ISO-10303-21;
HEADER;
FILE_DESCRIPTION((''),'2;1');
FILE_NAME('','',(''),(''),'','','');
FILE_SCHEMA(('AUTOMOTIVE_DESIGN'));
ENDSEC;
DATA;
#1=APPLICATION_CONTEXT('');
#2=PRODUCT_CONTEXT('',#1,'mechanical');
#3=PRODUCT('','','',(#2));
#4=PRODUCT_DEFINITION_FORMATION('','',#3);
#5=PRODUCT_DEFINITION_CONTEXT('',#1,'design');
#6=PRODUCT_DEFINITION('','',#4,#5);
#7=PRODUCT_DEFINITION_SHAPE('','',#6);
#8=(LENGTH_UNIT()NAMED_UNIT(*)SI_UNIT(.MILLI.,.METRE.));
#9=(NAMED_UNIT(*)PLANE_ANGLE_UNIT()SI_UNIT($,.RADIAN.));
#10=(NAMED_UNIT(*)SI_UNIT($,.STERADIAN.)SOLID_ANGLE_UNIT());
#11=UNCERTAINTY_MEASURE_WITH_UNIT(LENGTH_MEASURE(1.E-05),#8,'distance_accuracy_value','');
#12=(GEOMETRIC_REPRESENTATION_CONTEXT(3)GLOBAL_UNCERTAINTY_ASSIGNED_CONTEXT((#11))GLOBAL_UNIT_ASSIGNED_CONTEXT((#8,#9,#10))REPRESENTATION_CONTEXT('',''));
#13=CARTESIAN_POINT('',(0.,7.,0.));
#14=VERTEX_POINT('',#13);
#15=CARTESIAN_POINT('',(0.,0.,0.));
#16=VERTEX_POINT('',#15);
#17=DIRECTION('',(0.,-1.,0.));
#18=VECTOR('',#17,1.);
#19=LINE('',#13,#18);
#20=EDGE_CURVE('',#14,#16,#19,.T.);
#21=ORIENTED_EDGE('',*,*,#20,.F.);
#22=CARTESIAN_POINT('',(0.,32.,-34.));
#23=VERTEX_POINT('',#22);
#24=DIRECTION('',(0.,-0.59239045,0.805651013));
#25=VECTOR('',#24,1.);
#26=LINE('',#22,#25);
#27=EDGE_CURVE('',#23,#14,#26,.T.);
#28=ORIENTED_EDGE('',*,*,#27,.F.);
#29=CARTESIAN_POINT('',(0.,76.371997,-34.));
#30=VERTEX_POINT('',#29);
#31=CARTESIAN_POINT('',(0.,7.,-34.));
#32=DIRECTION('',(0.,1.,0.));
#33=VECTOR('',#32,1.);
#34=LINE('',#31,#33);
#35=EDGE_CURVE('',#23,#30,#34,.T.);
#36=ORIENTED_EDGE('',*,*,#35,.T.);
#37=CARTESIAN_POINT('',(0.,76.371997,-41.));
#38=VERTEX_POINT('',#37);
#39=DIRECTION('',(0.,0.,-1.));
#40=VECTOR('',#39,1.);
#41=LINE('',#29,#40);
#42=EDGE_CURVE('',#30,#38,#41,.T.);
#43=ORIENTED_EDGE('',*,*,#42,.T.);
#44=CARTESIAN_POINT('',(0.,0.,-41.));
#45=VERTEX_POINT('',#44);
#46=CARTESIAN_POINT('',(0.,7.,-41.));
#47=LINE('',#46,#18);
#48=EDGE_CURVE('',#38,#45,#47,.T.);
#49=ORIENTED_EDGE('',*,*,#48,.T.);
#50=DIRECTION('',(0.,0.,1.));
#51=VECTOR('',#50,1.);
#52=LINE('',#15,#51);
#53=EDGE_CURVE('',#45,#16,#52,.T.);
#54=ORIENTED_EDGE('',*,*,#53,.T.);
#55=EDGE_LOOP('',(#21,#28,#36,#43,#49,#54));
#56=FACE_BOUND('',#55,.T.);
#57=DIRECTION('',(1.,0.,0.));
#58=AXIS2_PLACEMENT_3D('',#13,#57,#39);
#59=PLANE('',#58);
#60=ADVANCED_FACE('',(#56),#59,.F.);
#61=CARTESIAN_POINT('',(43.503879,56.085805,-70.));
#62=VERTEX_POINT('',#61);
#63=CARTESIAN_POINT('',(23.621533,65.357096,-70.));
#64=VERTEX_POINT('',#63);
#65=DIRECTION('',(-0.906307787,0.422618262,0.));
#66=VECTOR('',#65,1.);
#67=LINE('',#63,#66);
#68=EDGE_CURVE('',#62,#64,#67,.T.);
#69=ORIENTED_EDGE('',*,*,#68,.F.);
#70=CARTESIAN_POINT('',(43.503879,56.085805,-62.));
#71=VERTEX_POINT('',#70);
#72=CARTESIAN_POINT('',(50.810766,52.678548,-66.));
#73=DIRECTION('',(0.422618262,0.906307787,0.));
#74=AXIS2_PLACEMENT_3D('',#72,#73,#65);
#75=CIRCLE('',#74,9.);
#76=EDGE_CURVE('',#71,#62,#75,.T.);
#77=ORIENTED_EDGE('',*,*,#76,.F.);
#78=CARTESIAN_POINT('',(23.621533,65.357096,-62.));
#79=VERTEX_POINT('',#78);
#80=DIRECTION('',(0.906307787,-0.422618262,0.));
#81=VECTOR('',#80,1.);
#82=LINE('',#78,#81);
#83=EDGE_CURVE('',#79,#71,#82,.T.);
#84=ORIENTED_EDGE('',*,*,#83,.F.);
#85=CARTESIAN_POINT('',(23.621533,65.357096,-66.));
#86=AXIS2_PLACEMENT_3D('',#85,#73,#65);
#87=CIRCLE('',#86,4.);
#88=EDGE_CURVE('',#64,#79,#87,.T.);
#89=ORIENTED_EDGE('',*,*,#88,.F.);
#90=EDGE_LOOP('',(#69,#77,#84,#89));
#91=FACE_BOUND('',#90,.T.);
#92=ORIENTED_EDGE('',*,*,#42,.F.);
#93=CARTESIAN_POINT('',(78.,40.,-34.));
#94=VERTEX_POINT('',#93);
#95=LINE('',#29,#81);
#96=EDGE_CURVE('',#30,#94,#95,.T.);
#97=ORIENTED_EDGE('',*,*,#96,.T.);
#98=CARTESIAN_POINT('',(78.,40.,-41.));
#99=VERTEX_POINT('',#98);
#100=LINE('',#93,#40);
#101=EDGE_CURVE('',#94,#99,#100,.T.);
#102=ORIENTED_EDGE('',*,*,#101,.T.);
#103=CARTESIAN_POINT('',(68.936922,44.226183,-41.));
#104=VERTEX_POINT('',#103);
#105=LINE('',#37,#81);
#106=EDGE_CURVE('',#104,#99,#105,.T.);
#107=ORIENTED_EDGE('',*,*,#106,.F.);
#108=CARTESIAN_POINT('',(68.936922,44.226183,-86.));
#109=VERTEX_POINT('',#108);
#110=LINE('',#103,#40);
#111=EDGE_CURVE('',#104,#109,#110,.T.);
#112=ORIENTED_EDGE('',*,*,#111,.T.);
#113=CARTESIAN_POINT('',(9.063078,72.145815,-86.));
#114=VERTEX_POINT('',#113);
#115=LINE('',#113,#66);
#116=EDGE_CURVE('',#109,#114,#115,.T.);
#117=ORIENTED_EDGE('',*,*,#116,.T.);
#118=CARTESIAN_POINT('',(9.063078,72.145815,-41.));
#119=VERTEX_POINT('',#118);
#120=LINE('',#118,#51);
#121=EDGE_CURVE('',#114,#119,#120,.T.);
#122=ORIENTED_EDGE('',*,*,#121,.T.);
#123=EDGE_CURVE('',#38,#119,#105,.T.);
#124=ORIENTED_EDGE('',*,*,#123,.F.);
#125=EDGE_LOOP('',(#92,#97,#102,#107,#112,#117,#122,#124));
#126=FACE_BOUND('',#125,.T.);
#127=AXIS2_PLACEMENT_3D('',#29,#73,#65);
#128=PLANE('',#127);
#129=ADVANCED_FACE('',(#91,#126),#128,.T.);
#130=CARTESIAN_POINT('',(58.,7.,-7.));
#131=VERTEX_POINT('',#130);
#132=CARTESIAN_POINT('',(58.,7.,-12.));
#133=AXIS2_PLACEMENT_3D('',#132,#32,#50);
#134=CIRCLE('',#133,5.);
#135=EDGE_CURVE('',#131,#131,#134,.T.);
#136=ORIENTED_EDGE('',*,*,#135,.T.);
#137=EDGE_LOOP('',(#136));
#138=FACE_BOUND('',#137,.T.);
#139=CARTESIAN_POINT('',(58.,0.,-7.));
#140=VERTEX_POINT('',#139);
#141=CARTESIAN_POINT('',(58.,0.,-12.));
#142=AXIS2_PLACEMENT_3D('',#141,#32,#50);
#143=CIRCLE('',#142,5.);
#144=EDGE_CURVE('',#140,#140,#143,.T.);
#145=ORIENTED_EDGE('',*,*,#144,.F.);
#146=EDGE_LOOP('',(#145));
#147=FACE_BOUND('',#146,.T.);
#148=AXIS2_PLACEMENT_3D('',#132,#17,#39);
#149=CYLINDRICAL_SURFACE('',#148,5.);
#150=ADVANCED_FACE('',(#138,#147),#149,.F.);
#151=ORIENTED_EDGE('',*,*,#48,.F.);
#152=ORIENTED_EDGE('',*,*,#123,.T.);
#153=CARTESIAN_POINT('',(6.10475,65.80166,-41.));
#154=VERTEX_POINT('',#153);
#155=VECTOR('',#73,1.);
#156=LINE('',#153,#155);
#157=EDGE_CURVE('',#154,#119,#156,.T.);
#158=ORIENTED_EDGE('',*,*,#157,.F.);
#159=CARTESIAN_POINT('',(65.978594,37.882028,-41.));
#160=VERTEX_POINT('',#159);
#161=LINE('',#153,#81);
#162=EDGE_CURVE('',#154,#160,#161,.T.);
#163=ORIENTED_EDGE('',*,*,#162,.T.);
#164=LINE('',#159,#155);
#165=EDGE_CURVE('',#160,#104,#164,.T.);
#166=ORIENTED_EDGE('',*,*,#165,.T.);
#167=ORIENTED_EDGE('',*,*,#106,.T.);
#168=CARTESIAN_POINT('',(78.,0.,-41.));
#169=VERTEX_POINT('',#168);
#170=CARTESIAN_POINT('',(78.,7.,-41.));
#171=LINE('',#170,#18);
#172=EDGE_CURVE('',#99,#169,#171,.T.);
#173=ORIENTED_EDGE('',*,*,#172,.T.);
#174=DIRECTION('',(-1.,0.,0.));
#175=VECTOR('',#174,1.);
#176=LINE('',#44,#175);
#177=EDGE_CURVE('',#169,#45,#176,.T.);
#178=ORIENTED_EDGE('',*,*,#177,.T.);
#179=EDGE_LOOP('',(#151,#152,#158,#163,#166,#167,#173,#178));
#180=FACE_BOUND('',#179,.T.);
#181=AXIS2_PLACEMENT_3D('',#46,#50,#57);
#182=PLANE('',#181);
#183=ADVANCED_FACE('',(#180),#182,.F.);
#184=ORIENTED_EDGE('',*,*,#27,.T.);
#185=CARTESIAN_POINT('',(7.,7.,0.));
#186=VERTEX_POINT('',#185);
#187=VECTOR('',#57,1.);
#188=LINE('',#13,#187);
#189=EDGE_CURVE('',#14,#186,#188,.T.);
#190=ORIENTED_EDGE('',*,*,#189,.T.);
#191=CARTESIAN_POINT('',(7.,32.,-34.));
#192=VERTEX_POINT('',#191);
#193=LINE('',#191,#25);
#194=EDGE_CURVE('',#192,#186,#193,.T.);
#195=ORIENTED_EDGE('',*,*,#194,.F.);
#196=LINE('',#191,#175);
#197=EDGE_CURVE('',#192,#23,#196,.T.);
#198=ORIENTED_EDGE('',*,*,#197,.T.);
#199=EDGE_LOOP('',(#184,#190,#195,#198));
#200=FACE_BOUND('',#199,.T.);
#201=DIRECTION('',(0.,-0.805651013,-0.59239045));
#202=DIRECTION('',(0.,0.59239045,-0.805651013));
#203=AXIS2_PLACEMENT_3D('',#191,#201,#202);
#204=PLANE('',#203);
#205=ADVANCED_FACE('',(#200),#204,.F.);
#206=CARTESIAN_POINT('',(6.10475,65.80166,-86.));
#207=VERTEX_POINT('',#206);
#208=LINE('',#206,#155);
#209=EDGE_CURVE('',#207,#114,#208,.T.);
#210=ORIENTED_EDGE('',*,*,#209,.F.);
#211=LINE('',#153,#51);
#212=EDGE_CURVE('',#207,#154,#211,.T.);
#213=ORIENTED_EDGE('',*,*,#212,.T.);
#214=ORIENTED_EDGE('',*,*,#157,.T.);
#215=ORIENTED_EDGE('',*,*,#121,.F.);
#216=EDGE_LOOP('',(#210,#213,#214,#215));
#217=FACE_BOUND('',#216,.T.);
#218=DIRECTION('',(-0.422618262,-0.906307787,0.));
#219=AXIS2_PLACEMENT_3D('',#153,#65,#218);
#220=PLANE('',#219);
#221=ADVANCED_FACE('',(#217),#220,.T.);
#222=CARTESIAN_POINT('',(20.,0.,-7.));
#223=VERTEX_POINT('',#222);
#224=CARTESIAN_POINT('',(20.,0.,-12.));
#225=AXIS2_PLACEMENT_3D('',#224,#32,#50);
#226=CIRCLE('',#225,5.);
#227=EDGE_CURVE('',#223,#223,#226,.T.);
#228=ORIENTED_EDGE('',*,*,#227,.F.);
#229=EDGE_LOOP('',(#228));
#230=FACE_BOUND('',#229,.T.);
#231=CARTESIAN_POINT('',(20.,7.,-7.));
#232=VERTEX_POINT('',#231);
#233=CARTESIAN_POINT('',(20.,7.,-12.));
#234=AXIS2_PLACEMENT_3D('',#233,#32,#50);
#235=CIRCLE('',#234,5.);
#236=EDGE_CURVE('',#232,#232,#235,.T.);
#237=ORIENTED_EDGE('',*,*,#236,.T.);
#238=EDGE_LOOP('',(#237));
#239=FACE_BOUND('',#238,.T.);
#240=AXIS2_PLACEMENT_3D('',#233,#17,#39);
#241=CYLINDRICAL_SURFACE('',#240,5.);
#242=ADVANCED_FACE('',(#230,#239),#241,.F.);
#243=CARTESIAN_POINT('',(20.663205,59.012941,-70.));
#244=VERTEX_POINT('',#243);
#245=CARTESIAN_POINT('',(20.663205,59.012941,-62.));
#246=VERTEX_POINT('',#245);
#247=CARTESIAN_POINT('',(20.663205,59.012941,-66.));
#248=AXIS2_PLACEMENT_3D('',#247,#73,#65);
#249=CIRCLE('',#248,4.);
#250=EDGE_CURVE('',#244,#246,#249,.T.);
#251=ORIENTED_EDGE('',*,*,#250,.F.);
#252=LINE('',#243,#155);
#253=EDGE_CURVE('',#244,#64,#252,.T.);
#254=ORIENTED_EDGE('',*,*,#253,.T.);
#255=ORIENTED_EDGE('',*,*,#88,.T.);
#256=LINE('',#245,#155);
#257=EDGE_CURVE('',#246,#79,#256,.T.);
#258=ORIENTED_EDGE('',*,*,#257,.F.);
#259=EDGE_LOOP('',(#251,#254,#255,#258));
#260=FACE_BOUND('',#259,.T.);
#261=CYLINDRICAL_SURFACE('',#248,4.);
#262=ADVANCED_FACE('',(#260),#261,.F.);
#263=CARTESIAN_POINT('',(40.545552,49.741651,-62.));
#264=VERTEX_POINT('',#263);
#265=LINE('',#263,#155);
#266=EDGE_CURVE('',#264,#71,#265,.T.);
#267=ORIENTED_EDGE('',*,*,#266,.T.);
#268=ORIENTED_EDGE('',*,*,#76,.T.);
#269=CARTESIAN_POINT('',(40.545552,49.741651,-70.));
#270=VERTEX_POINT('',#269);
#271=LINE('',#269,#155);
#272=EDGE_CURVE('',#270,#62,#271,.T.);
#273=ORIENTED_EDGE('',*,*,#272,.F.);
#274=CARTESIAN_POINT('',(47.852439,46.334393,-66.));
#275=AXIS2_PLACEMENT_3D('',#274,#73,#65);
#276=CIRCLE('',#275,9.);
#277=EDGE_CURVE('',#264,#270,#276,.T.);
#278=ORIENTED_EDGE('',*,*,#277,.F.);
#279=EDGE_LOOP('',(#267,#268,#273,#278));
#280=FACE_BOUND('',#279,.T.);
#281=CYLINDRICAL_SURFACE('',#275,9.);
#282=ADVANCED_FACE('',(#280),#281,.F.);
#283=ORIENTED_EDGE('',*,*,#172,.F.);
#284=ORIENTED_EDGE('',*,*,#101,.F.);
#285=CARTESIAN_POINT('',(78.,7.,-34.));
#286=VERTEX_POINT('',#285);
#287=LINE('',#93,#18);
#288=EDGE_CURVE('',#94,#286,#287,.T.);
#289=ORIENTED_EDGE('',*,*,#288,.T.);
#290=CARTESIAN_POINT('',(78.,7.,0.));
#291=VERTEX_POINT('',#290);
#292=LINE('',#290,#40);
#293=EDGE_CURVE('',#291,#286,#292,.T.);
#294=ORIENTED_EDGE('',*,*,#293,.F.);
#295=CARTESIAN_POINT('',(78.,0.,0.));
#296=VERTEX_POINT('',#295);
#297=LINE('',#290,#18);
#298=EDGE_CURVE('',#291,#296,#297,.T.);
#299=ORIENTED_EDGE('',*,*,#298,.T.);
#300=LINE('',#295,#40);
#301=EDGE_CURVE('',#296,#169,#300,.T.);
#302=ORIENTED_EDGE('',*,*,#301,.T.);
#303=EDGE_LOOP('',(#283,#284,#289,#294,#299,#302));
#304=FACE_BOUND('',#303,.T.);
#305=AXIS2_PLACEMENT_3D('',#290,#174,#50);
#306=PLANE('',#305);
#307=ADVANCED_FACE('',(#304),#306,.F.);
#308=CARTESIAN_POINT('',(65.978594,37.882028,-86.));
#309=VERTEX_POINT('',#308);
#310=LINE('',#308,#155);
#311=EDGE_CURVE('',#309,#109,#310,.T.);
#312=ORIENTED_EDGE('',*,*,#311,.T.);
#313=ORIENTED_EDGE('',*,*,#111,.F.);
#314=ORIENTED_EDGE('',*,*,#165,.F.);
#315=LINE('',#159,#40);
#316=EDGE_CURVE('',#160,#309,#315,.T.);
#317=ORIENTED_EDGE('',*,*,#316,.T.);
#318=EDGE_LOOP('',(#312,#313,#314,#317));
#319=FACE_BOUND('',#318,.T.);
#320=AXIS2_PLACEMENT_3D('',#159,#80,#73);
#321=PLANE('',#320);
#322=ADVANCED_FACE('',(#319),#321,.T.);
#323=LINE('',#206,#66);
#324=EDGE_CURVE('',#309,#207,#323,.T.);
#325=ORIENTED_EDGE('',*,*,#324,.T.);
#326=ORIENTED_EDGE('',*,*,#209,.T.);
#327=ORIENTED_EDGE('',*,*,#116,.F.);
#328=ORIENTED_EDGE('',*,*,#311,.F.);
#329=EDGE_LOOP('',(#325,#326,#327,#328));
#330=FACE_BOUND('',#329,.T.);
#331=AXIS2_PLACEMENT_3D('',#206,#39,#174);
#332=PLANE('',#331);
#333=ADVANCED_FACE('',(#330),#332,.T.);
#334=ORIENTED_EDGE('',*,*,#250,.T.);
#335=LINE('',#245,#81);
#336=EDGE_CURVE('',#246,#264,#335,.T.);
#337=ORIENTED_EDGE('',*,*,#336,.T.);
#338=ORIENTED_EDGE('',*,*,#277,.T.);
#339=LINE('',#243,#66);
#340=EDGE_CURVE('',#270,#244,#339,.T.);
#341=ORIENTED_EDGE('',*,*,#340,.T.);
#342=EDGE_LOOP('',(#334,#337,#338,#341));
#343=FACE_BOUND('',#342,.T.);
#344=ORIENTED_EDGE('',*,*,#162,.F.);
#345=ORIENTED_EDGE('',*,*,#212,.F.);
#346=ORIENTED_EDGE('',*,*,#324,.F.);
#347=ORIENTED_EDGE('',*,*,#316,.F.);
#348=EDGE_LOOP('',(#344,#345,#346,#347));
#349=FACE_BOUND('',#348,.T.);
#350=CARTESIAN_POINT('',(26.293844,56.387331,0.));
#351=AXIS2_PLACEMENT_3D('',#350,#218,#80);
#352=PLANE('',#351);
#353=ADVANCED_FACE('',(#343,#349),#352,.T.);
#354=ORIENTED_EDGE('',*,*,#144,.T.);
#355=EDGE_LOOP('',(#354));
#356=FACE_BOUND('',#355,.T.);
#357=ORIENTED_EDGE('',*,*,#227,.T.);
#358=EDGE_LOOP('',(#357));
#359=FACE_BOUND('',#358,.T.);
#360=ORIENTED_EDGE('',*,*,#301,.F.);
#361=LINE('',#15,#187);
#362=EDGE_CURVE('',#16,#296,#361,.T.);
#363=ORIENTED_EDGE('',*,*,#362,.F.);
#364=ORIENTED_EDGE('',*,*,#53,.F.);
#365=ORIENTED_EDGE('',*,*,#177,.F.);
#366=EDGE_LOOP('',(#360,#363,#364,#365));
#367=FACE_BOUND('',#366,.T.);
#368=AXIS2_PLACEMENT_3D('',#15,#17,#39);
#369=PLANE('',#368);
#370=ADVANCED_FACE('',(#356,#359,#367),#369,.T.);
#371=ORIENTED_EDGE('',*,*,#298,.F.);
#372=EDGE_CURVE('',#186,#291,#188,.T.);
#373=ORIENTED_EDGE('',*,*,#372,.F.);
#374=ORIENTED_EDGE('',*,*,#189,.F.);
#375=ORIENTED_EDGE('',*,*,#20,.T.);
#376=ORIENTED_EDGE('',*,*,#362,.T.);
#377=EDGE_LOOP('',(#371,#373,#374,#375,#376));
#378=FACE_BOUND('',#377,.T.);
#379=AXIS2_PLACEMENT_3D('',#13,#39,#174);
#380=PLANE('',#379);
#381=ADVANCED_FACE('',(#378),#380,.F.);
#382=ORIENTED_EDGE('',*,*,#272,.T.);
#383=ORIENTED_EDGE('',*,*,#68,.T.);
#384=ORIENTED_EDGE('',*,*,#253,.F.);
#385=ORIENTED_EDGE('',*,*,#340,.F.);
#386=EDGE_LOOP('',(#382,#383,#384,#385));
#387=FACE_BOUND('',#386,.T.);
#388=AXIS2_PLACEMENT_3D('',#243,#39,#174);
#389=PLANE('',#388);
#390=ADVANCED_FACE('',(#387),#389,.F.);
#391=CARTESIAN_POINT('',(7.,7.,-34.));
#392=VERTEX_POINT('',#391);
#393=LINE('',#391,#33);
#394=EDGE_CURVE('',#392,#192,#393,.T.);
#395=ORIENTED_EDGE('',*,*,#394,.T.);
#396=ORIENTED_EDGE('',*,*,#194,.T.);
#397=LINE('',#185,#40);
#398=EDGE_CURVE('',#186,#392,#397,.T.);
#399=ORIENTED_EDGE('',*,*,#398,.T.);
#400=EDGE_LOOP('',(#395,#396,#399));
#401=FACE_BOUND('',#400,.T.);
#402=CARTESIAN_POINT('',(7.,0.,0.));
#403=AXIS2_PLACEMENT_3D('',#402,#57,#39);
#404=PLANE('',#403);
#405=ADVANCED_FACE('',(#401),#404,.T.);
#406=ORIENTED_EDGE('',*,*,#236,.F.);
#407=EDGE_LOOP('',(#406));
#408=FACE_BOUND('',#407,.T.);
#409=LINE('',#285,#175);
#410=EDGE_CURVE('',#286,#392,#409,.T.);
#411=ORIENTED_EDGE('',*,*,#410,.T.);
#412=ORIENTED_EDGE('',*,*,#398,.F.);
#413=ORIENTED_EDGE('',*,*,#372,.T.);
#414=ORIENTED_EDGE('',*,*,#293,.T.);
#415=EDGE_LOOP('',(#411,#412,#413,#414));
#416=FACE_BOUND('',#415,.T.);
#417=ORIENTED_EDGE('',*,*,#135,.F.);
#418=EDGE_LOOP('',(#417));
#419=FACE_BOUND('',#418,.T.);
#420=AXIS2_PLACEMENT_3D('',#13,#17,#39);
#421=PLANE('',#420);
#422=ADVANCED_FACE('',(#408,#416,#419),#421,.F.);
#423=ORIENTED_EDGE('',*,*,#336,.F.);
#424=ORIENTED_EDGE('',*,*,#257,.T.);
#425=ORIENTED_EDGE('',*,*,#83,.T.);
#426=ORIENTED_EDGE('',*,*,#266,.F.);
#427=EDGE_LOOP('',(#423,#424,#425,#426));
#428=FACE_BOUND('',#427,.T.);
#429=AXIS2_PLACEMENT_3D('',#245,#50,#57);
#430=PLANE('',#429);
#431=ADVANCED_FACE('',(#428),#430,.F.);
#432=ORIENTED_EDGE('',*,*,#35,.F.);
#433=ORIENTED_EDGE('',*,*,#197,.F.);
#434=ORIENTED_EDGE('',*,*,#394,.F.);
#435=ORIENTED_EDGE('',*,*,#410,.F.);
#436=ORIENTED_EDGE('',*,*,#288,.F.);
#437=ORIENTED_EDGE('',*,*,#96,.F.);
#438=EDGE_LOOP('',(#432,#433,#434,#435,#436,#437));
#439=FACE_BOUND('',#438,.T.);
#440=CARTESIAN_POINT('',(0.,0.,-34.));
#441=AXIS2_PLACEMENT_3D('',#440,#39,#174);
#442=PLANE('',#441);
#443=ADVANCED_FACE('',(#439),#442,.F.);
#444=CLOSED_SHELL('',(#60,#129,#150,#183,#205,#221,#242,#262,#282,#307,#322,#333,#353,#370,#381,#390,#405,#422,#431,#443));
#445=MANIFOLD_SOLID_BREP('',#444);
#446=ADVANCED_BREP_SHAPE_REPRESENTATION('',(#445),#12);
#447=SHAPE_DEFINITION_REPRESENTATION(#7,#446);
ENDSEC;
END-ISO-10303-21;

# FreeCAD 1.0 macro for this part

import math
import FreeCAD as App
import Part
import Sketcher

V = App.Vector
Q = App.Units.Quantity


def add_polygon(sketch, points):
    """Adds a closed chain of lines whose ends are joined by coincident constraints."""
    first, n = sketch.GeometryCount, len(points)
    for a, b in zip(points, points[1:] + points[:1]):
        sketch.addGeometry(Part.LineSegment(App.Vector(*a, 0), App.Vector(*b, 0)), False)
    for i in range(n):
        sketch.addConstraint(Sketcher.Constraint("Coincident", first + i, 2, first + (i + 1) % n, 1))

doc = App.newDocument("Part")
body = doc.addObject("PartDesign::Body", "Body")

sketch1 = body.newObject("Sketcher::SketchObject", "Sketch")
sketch1.AttachmentSupport = (doc.getObject("XZ_Plane"), [""])
sketch1.MapMode = "FlatFace"
add_polygon(sketch1, [(0, -41), (0, 0), (78, 0), (78, -41)])
sketch1.addGeometry(Part.Circle(V(20, -12, 0), V(0, 0, 1), 5), False)
sketch1.addGeometry(Part.Circle(V(58, -12, 0), V(0, 0, 1), 5), False)
sketch1.addConstraint(Sketcher.Constraint("Vertical", 0))
sketch1.addConstraint(Sketcher.Constraint("Horizontal", 1))
sketch1.addConstraint(Sketcher.Constraint("Vertical", 2))
sketch1.addConstraint(Sketcher.Constraint("Horizontal", 3))
sketch1.addConstraint(Sketcher.Constraint("Coincident", 0, 2, -1, 1))
sketch1.addConstraint(Sketcher.Constraint("Equal", 4, 5))
sketch1.addConstraint(Sketcher.Constraint("Horizontal", 4, 3, 5, 3))
sketch1.addConstraint(Sketcher.Constraint("Diameter", 4, 10.0))
sketch1.addConstraint(Sketcher.Constraint("DistanceX", 1, 1, 1, 2, 78.0))
sketch1.addConstraint(Sketcher.Constraint("DistanceY", 0, 1, 0, 2, 41.0))
sketch1.addConstraint(Sketcher.Constraint("DistanceX", -1, 1, 4, 3, 20.0))
sketch1.addConstraint(Sketcher.Constraint("DistanceY", 4, 3, -1, 1, 12.0))
sketch1.addConstraint(Sketcher.Constraint("DistanceX", -1, 1, 5, 3, 58.0))
pad1 = body.newObject("PartDesign::Pad", "Pad")
pad1.Profile = sketch1
pad1.Length = 7
pad1.Reversed = True

sketch2 = body.newObject("Sketcher::SketchObject", "Sketch001")
sketch2.AttachmentSupport = (doc.getObject("XY_Plane"), [""])
sketch2.MapMode = "FlatFace"
sketch2.AttachmentOffset = App.Placement(V(0, 0, -41), App.Rotation())
add_polygon(sketch2, [(0, 76), (0, 7), (78, 7), (78, 40)])
sketch2.addConstraint(Sketcher.Constraint("Vertical", 0))
sketch2.addConstraint(Sketcher.Constraint("Horizontal", 1))
sketch2.addConstraint(Sketcher.Constraint("Vertical", 2))
sketch2.addConstraint(Sketcher.Constraint("PointOnObject", 0, 2, -2))
sketch2.addConstraint(Sketcher.Constraint("DistanceX", 1, 1, 1, 2, 78.0))
sketch2.addConstraint(Sketcher.Constraint("DistanceY", 2, 1, 2, 2, 33.0))
sketch2.addConstraint(Sketcher.Constraint("Angle", 3, Q("155 deg")))
sketch2.addConstraint(Sketcher.Constraint("DistanceY", -1, 1, 0, 2, 7.0))
pad2 = body.newObject("PartDesign::Pad", "Pad001")
pad2.Profile = sketch2
pad2.Length = 7

sketch3 = body.newObject("Sketcher::SketchObject", "Sketch002")
sketch3.AttachmentSupport = (doc.getObject("YZ_Plane"), [""])
sketch3.MapMode = "FlatFace"
add_polygon(sketch3, [(7, -34), (32, -34), (7, 0)])
sketch3.addConstraint(Sketcher.Constraint("Horizontal", 0))
sketch3.addConstraint(Sketcher.Constraint("Vertical", 2))
sketch3.addConstraint(Sketcher.Constraint("PointOnObject", 1, 2, -1))
sketch3.addConstraint(Sketcher.Constraint("DistanceX", 0, 1, 0, 2, 25.0))
sketch3.addConstraint(Sketcher.Constraint("DistanceY", 2, 2, 2, 1, 34.0))
sketch3.addConstraint(Sketcher.Constraint("DistanceX", -1, 1, 0, 2, 32.0))
pad3 = body.newObject("PartDesign::Pad", "Pad002")
pad3.Profile = sketch3
pad3.Length = 7

sketch4 = body.newObject("Sketcher::SketchObject", "Sketch003")
sketch4.Placement = App.Placement(V(29.252172, 62.731485, 0), App.Rotation(V(0.906307787, -0.422618262, 0), V(0, 0, -1), V(0.422618262, 0.906307787, 0), "ZXY"))
add_polygon(sketch4, [(-22.3, 86), (-22.3, 41), (43.8, 41), (43.8, 86)])
sketch4.addGeometry(Part.ArcOfCircle(Part.Circle(V(-6.2, 66, 0), V(0, 0, 1), 4), math.radians(90), math.radians(270)), False)
sketch4.addGeometry(Part.LineSegment(V(-6.2, 70, 0), V(15.7, 70, 0)), False)
sketch4.addGeometry(Part.ArcOfCircle(Part.Circle(V(23.8, 66, 0), V(0, 0, 1), 9), math.radians(-154), math.radians(154)), False)
sketch4.addGeometry(Part.LineSegment(V(15.7, 62, 0), V(-6.2, 62, 0)), False)
sketch4.addConstraint(Sketcher.Constraint("Tangent", 4, 1, 5, 1))
sketch4.addConstraint(Sketcher.Constraint("Coincident", 5, 2, 6, 2))
sketch4.addConstraint(Sketcher.Constraint("Coincident", 6, 1, 7, 1))
sketch4.addConstraint(Sketcher.Constraint("Tangent", 7, 2, 4, 2))
sketch4.addConstraint(Sketcher.Constraint("Vertical", 0))
sketch4.addConstraint(Sketcher.Constraint("Horizontal", 1))
sketch4.addConstraint(Sketcher.Constraint("Vertical", 2))
sketch4.addConstraint(Sketcher.Constraint("Horizontal", 3))
sketch4.addConstraint(Sketcher.Constraint("Horizontal", 5))
sketch4.addConstraint(Sketcher.Constraint("Horizontal", 7))
sketch4.addConstraint(Sketcher.Constraint("Horizontal", 4, 3, 6, 3))
sketch4.addConstraint(Sketcher.Constraint("Radius", 4, 4.0))
sketch4.addConstraint(Sketcher.Constraint("Radius", 6, 9.0))
sketch4.addConstraint(Sketcher.Constraint("DistanceY", 0, 2, 0, 1, 45.0))
sketch4.addConstraint(Sketcher.Constraint("DistanceY", -1, 1, 4, 3, 66.0))
sketch4.addConstraint(Sketcher.Constraint("DistanceY", -1, 1, 0, 2, 41.0))
sketch4.addConstraint(Sketcher.Constraint("DistanceX", 4, 3, 6, 3, 30.0))
sketch4.addConstraint(Sketcher.Constraint("DistanceX", 6, 3, 1, 2, 20.0))
sketch4.addConstraint(Sketcher.Constraint("DistanceX", 0, 2, -1, 1, 22.276201))
sketch4.addConstraint(Sketcher.Constraint("DistanceX", 1, 1, 1, 2, 66.063478))
pad4 = body.newObject("PartDesign::Pad", "Pad003")
pad4.Profile = sketch4
pad4.Length = 7
pad4.Reversed = True

doc.recompute()
